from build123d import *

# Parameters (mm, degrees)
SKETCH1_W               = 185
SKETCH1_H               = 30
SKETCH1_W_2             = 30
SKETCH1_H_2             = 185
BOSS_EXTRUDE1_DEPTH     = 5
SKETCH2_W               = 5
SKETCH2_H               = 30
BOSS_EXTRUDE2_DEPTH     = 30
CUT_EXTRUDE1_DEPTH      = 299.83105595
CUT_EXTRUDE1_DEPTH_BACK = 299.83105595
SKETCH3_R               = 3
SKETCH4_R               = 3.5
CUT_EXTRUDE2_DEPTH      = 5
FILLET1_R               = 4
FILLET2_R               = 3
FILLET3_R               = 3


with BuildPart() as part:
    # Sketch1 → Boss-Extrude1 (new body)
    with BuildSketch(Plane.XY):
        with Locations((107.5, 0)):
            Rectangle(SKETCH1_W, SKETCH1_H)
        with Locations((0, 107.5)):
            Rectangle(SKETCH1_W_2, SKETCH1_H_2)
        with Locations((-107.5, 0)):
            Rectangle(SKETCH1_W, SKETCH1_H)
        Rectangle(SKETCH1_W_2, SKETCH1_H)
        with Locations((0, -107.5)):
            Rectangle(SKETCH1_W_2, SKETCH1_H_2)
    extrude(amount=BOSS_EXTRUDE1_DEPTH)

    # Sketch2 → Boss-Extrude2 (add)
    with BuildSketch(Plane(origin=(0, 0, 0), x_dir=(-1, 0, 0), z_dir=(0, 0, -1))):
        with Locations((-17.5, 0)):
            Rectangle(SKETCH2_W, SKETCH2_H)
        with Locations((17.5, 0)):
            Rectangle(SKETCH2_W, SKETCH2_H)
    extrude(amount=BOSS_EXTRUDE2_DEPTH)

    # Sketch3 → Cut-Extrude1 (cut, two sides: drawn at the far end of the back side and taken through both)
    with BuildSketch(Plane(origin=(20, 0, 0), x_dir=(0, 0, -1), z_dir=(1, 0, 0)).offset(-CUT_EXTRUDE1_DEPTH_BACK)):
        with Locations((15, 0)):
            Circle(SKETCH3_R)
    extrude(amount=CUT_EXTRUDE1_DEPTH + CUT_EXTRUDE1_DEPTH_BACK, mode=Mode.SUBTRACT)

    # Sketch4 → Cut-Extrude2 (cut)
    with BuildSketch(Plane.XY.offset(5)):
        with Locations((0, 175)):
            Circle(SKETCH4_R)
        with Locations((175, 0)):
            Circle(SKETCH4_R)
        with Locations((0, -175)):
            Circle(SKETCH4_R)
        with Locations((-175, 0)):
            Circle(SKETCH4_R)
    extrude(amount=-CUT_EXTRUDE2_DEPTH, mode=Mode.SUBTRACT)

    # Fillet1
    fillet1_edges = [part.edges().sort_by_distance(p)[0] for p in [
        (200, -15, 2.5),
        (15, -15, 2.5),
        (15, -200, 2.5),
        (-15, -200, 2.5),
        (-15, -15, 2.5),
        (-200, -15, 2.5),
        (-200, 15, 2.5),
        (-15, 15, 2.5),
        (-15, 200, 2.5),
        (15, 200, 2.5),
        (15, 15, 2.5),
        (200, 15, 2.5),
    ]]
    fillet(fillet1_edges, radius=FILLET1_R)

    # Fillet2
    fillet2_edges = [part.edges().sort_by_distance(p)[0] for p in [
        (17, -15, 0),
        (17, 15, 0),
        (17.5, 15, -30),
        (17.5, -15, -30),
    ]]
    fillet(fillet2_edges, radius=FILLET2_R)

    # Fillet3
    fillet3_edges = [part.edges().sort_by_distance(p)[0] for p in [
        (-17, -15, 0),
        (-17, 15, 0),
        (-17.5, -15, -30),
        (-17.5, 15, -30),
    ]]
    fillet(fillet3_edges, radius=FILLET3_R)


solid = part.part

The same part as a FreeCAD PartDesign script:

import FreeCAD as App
import Part
import Sketcher
from FreeCAD import Vector


def edges_at(feature, points):
    """Names of the edges that pass closest to the given points."""
    edges = feature.Shape.Edges
    near = lambda p: min(range(len(edges)), key=lambda i: edges[i].distToShape(Part.Vertex(*p))[0])
    return sorted({f"Edge{near(p) + 1}" for p in points})

doc = App.newDocument("Part")
body = doc.addObject("PartDesign::Body", "Body")

sketch1 = body.newObject("Sketcher::SketchObject", "Sketch")
sketch1.AttachmentSupport = (doc.getObject("XY_Plane"), [""])
sketch1.MapMode = "FlatFace"
sketch1.addGeometry([
    Part.LineSegment(Vector(200, -15, 0), Vector(200, 15, 0)),
    Part.LineSegment(Vector(200, 15, 0), Vector(15, 15, 0)),
    Part.LineSegment(Vector(15, 15, 0), Vector(15, 200, 0)),
    Part.LineSegment(Vector(15, 200, 0), Vector(-15, 200, 0)),
    Part.LineSegment(Vector(-15, 200, 0), Vector(-15, 15, 0)),
    Part.LineSegment(Vector(-15, 15, 0), Vector(-200, 15, 0)),
    Part.LineSegment(Vector(-200, 15, 0), Vector(-200, -15, 0)),
    Part.LineSegment(Vector(-200, -15, 0), Vector(-15, -15, 0)),
    Part.LineSegment(Vector(-15, -15, 0), Vector(-15, -200, 0)),
    Part.LineSegment(Vector(-15, -200, 0), Vector(15, -200, 0)),
    Part.LineSegment(Vector(15, -200, 0), Vector(15, -15, 0)),
    Part.LineSegment(Vector(15, -15, 0), Vector(200, -15, 0)),
], False)
sketch1.addConstraint([
    Sketcher.Constraint("Coincident", 0, 2, 1, 1),
    Sketcher.Constraint("Coincident", 1, 2, 2, 1),
    Sketcher.Constraint("Coincident", 2, 2, 3, 1),
    Sketcher.Constraint("Coincident", 3, 2, 4, 1),
    Sketcher.Constraint("Coincident", 4, 2, 5, 1),
    Sketcher.Constraint("Coincident", 5, 2, 6, 1),
    Sketcher.Constraint("Coincident", 6, 2, 7, 1),
    Sketcher.Constraint("Coincident", 7, 2, 8, 1),
    Sketcher.Constraint("Coincident", 8, 2, 9, 1),
    Sketcher.Constraint("Coincident", 9, 2, 10, 1),
    Sketcher.Constraint("Coincident", 10, 2, 11, 1),
    Sketcher.Constraint("Coincident", 11, 2, 0, 1),
    Sketcher.Constraint("Vertical", 0),
    Sketcher.Constraint("Horizontal", 1),
    Sketcher.Constraint("Vertical", 2),
    Sketcher.Constraint("Horizontal", 3),
    Sketcher.Constraint("Vertical", 4),
    Sketcher.Constraint("Horizontal", 5),
    Sketcher.Constraint("Vertical", 6),
    Sketcher.Constraint("Horizontal", 7),
    Sketcher.Constraint("Vertical", 8),
    Sketcher.Constraint("Horizontal", 9),
    Sketcher.Constraint("Vertical", 10),
    Sketcher.Constraint("Horizontal", 11),
    Sketcher.Constraint("Symmetric", 0, 2, 6, 2, -1, 1),
    Sketcher.Constraint("Symmetric", 2, 2, 8, 2, -1, 1),
    Sketcher.Constraint("Symmetric", 4, 2, 10, 2, -1, 1),
    Sketcher.Constraint("Symmetric", 1, 2, 4, 2, -2),
    Sketcher.Constraint("Equal", 9, 0),
    Sketcher.Constraint("Equal", 11, 2),
    Sketcher.Constraint("DistanceX", 1, 2, 1, 1, 185.0),
    Sketcher.Constraint("DistanceX", 3, 2, 3, 1, 30.0),
])
pad1 = body.newObject("PartDesign::Pad", "Pad")
pad1.Profile = sketch1
pad1.Length = 5

sketch2 = body.newObject("Sketcher::SketchObject", "Sketch001")
sketch2.AttachmentSupport = (doc.getObject("XY_Plane"), [""])
sketch2.MapMode = "FlatFace"
sketch2.addGeometry([
    Part.LineSegment(Vector(20, 15, 0), Vector(20, -15, 0)),
    Part.LineSegment(Vector(20, -15, 0), Vector(15, -15, 0)),
    Part.LineSegment(Vector(15, -15, 0), Vector(15, 15, 0)),
    Part.LineSegment(Vector(15, 15, 0), Vector(20, 15, 0)),
    Part.LineSegment(Vector(-15, 15, 0), Vector(-15, -15, 0)),
    Part.LineSegment(Vector(-15, -15, 0), Vector(-20, -15, 0)),
    Part.LineSegment(Vector(-20, -15, 0), Vector(-20, 15, 0)),
    Part.LineSegment(Vector(-20, 15, 0), Vector(-15, 15, 0)),
], False)
sketch2.addConstraint([
    Sketcher.Constraint("Coincident", 0, 2, 1, 1),
    Sketcher.Constraint("Coincident", 1, 2, 2, 1),
    Sketcher.Constraint("Coincident", 2, 2, 3, 1),
    Sketcher.Constraint("Coincident", 3, 2, 0, 1),
    Sketcher.Constraint("Coincident", 4, 2, 5, 1),
    Sketcher.Constraint("Coincident", 5, 2, 6, 1),
    Sketcher.Constraint("Coincident", 6, 2, 7, 1),
    Sketcher.Constraint("Coincident", 7, 2, 4, 1),
    Sketcher.Constraint("Vertical", 0),
    Sketcher.Constraint("Horizontal", 1),
    Sketcher.Constraint("Vertical", 2),
    Sketcher.Constraint("Horizontal", 3),
    Sketcher.Constraint("Vertical", 4),
    Sketcher.Constraint("Horizontal", 5),
    Sketcher.Constraint("Vertical", 6),
    Sketcher.Constraint("Horizontal", 7),
    Sketcher.Constraint("Symmetric", 2, 2, 4, 2, -1, 1),
    Sketcher.Constraint("Symmetric", 0, 2, 6, 2, -1, 1),
    Sketcher.Constraint("Horizontal", 1, 2, 4, 2),
    Sketcher.Constraint("DistanceX", 1, 2, 1, 1, 5.0),
    Sketcher.Constraint("DistanceY", 0, 2, 0, 1, 30.0),
    Sketcher.Constraint("DistanceX", -1, 1, 0, 2, 20.0),
])
pad2 = body.newObject("PartDesign::Pad", "Pad001")
pad2.Profile = sketch2
pad2.Length = 30
pad2.Reversed = True

sketch3 = body.newObject("Sketcher::SketchObject", "Sketch002")
sketch3.AttachmentSupport = (doc.getObject("YZ_Plane"), [""])
sketch3.MapMode = "FlatFace"
sketch3.AttachmentOffset = App.Placement(Vector(0, 0, 20), App.Rotation())
sketch3.addGeometry(Part.Circle(Vector(0, -15, 0), Vector(0, 0, 1), 3), False)
sketch3.addConstraint([
    Sketcher.Constraint("PointOnObject", 0, 3, -2),
    Sketcher.Constraint("Diameter", 0, 6.0),
    Sketcher.Constraint("DistanceY", 0, 3, -1, 1, 15.0),
])
pocket1 = body.newObject("PartDesign::Pocket", "Pocket")
pocket1.Profile = sketch3
pocket1.Type = "ThroughAll"
pocket1.Midplane = True

sketch4 = body.newObject("Sketcher::SketchObject", "Sketch003")
sketch4.AttachmentSupport = (doc.getObject("XY_Plane"), [""])
sketch4.MapMode = "FlatFace"
sketch4.AttachmentOffset = App.Placement(Vector(0, 0, 5), App.Rotation())
sketch4.addGeometry([
    Part.Circle(Vector(0, 175, 0), Vector(0, 0, 1), 3.5),
    Part.Circle(Vector(175, 0, 0), Vector(0, 0, 1), 3.5),
    Part.Circle(Vector(0, -175, 0), Vector(0, 0, 1), 3.5),
    Part.Circle(Vector(-175, 0, 0), Vector(0, 0, 1), 3.5),
], False)
sketch4.addConstraint([
    Sketcher.Constraint("Equal", 0, 1),
    Sketcher.Constraint("Equal", 1, 2),
    Sketcher.Constraint("Equal", 2, 3),
    Sketcher.Constraint("Symmetric", 0, 3, 2, 3, -1, 1),
    Sketcher.Constraint("Symmetric", 1, 3, 3, 3, -1, 1),
    Sketcher.Constraint("PointOnObject", 0, 3, -2),
    Sketcher.Constraint("PointOnObject", 1, 3, -1),
    Sketcher.Constraint("Diameter", 0, 7.0),
    Sketcher.Constraint("DistanceY", -1, 1, 0, 3, 175.0),
    Sketcher.Constraint("DistanceX", -1, 1, 1, 3, 175.0),
])
pocket2 = body.newObject("PartDesign::Pocket", "Pocket001")
pocket2.Profile = sketch4
pocket2.Length = 5
doc.recompute()

fillet = body.newObject("PartDesign::Fillet", "Fillet")
fillet.Base = (pocket2, edges_at(pocket2, [
    (200, -15, 2.5),
    (15, -15, 2.5),
    (15, -200, 2.5),
    (-15, -200, 2.5),
    (-15, -15, 2.5),
    (-200, -15, 2.5),
    (-200, 15, 2.5),
    (-15, 15, 2.5),
    (-15, 200, 2.5),
    (15, 200, 2.5),
    (15, 15, 2.5),
    (200, 15, 2.5),
]))
fillet.Radius = 4
doc.recompute()

fillet2 = body.newObject("PartDesign::Fillet", "Fillet001")
fillet2.Base = (fillet, edges_at(fillet, [
    (17, -15, 0),
    (17, 15, 0),
    (17.5, 15, -30),
    (17.5, -15, -30),
]))
fillet2.Radius = 3
doc.recompute()

fillet3 = body.newObject("PartDesign::Fillet", "Fillet002")
fillet3.Base = (fillet2, edges_at(fillet2, [
    (-17, -15, 0),
    (-17, 15, 0),
    (-17.5, -15, -30),
    (-17.5, 15, -30),
]))
fillet3.Radius = 3

doc.recompute()
